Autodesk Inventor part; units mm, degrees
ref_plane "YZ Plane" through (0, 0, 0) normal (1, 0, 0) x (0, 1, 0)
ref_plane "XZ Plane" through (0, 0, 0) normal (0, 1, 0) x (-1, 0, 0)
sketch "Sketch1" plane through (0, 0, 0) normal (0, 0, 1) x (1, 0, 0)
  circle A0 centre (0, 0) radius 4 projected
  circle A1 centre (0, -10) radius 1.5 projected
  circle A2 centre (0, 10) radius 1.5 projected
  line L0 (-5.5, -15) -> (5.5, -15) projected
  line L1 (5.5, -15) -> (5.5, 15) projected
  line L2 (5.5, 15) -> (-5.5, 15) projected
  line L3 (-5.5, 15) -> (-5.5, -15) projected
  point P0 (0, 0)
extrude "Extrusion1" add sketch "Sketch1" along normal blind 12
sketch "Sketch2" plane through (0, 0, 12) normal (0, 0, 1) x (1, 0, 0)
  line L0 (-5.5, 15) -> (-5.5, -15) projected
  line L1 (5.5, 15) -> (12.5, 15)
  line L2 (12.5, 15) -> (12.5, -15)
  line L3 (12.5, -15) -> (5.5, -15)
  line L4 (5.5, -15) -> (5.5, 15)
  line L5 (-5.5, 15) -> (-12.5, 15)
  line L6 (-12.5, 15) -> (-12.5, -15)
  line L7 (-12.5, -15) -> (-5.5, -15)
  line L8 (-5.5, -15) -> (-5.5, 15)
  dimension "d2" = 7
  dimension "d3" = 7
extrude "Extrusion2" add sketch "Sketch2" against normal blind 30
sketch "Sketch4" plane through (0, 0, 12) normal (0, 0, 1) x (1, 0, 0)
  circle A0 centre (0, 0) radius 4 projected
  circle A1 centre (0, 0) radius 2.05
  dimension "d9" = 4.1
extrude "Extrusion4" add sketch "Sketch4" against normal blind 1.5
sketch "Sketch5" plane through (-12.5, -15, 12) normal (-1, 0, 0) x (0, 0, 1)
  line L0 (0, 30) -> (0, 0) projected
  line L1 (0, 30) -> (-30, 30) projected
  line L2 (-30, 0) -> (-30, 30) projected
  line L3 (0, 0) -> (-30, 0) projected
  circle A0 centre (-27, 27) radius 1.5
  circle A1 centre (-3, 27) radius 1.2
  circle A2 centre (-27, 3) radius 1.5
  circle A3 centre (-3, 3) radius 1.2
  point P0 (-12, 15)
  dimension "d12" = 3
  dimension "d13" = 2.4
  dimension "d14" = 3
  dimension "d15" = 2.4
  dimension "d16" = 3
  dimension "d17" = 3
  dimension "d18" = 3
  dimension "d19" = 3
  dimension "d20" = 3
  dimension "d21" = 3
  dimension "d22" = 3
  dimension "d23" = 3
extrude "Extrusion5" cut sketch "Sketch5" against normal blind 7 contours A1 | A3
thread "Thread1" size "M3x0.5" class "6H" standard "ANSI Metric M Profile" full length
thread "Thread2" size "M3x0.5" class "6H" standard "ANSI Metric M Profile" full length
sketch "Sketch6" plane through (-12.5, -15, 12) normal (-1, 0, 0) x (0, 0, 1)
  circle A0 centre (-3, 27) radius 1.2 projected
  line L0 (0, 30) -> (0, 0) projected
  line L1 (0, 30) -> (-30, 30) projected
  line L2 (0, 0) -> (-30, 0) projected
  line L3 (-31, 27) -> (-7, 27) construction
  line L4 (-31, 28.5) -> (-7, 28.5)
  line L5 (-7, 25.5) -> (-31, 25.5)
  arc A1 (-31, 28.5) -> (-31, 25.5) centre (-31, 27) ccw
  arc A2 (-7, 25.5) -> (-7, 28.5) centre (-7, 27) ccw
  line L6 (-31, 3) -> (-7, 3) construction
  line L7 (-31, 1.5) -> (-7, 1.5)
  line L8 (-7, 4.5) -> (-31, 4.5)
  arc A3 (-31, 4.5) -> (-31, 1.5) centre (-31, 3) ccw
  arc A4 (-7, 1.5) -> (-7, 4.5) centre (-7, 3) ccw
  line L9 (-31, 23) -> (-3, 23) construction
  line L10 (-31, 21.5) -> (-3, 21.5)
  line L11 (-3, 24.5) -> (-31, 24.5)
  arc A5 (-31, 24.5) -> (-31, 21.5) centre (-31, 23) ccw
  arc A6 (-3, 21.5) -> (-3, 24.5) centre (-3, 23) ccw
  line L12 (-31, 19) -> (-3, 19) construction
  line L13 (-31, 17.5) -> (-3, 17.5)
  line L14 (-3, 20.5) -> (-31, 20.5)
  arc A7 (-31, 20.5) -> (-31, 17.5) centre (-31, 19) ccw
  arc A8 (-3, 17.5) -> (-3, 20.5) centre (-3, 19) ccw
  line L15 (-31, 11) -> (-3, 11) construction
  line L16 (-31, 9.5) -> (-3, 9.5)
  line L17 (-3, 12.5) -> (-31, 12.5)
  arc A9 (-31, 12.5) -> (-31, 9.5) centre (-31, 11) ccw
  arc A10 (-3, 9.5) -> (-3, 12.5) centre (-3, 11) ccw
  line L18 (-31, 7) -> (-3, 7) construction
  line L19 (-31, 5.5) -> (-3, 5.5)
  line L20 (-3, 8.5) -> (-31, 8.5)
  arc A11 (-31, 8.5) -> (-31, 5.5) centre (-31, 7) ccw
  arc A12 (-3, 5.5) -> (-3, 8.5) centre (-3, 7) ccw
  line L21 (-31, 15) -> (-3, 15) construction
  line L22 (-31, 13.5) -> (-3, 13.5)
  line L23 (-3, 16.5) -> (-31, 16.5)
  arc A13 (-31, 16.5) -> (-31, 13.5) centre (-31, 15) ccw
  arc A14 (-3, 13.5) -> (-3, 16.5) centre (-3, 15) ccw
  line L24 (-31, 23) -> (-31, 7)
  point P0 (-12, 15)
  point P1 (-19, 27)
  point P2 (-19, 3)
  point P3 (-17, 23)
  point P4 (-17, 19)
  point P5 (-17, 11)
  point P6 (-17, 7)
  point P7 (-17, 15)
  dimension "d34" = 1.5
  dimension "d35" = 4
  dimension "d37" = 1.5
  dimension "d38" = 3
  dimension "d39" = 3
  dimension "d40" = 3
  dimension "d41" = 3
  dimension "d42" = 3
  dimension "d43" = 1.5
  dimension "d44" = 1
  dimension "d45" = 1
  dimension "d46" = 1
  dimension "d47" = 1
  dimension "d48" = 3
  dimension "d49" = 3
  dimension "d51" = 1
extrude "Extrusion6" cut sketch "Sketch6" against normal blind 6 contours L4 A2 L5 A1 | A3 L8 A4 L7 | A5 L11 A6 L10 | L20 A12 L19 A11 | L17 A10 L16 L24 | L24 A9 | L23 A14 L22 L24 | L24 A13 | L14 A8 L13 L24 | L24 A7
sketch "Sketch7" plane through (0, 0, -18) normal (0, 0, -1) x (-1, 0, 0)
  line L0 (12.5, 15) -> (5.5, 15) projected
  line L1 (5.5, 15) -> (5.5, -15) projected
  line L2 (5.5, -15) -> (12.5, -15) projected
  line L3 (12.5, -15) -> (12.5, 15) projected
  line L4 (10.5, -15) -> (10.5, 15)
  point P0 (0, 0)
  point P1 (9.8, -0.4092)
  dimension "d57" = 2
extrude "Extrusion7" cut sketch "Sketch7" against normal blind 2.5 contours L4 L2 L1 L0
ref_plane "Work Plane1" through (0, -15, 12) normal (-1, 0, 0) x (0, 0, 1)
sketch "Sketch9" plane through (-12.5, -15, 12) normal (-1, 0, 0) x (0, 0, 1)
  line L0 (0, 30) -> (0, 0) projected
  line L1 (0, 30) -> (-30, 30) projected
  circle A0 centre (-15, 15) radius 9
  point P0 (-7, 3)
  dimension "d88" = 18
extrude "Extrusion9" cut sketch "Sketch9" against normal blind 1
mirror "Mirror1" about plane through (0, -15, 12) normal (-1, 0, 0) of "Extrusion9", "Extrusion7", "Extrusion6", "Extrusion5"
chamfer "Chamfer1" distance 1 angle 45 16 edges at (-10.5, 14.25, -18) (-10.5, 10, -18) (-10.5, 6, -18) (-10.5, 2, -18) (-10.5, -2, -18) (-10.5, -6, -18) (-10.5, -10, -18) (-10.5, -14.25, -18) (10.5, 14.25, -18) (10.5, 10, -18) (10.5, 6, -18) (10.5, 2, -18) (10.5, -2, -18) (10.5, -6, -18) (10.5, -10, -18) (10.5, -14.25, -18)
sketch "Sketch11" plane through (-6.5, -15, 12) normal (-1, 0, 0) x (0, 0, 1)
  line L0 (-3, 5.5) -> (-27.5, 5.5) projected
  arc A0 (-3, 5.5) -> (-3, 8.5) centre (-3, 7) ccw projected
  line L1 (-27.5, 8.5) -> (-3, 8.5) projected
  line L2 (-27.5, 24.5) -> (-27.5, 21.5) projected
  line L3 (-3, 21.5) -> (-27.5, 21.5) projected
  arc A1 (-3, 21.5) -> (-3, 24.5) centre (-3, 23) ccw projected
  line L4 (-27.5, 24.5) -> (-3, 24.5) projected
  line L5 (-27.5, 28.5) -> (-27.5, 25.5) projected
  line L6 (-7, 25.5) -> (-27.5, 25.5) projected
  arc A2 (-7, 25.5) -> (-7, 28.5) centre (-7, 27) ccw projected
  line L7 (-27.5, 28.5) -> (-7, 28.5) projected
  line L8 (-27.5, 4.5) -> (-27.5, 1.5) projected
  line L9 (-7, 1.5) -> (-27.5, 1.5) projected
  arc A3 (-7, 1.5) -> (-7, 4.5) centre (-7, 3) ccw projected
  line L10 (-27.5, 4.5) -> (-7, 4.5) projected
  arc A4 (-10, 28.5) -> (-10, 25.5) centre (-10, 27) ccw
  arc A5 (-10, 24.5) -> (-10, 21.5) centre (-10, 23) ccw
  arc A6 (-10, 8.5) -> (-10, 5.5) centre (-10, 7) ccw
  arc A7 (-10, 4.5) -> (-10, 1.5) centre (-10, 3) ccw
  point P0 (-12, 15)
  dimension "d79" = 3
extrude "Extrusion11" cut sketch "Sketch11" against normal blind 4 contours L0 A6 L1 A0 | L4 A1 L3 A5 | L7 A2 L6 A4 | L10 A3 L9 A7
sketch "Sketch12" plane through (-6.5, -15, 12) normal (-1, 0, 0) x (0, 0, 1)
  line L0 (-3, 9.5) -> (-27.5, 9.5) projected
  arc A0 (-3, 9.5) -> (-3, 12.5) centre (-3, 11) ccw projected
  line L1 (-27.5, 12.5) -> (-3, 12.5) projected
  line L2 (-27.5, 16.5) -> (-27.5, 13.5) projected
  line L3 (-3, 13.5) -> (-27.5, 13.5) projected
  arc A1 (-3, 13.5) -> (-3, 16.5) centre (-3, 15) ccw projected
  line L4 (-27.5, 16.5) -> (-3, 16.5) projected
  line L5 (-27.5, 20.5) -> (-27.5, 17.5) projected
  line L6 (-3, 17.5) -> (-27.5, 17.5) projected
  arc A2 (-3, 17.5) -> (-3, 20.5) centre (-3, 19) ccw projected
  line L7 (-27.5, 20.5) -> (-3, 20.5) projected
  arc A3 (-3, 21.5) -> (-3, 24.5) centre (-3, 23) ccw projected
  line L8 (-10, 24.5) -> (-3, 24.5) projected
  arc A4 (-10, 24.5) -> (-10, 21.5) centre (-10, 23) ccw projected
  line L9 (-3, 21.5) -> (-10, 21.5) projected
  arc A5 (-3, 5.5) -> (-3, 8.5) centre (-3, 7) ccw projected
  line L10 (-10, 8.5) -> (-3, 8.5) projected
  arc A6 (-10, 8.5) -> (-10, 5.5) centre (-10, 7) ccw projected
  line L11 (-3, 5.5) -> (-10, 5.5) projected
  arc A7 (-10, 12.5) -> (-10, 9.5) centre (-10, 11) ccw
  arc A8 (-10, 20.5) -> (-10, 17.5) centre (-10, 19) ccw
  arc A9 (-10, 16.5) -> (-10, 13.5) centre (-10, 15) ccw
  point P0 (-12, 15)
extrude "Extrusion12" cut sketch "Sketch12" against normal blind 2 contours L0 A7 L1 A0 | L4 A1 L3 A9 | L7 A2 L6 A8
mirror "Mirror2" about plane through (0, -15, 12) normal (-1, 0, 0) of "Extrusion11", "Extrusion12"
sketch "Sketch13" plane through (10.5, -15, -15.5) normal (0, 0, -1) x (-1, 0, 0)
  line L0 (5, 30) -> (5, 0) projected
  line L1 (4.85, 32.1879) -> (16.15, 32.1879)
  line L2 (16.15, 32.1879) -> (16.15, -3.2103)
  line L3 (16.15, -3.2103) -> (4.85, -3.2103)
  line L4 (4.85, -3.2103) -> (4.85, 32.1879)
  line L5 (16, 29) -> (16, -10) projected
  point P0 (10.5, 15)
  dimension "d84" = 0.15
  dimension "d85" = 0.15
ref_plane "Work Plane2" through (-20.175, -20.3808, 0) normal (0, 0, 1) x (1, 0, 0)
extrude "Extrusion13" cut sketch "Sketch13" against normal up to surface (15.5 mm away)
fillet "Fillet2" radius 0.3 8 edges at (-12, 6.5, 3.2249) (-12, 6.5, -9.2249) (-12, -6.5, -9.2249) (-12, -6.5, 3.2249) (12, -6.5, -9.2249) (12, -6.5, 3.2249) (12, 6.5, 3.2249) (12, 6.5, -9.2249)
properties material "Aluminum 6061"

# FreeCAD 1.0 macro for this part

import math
import FreeCAD as App
import Part
import Sketcher
Q = App.Units.Quantity


def edges_at(feature, points):
    """Names of the edges that pass closest to the given points."""
    edges = feature.Shape.Edges
    near = lambda p: min(range(len(edges)), key=lambda i: edges[i].distToShape(Part.Vertex(*p))[0])
    return sorted({f"Edge{near(p) + 1}" for p in points})


def add_polygon(sketch, points):
    """Adds a closed chain of lines whose ends are joined by coincident constraints."""
    first, n = sketch.GeometryCount, len(points)
    for a, b in zip(points, points[1:] + points[:1]):
        sketch.addGeometry(Part.LineSegment(App.Vector(*a, 0), App.Vector(*b, 0)), False)
    for i in range(n):
        sketch.addConstraint(Sketcher.Constraint("Coincident", first + i, 2, first + (i + 1) % n, 1))

doc = App.newDocument("Part")
body = doc.addObject("PartDesign::Body", "Body")

# Sketch on XY plane
sketch1 = body.newObject("Sketcher::SketchObject", "Sketch")
sketch1.AttachmentSupport = (doc.getObject("XY_Plane"), [""])
sketch1.MapMode = "FlatFace"
add_polygon(sketch1, [(-5.5, 15), (-5.5, -15), (5.5, -15), (5.5, 15)])  # lines 0-3
sketch1.addGeometry(Part.Circle(App.Vector(0, -10, 0), App.Vector(0, 0, 1), 1.5), False)  # 4
sketch1.addGeometry(Part.Circle(App.Vector(0, 0, 0), App.Vector(0, 0, 1), 4), False)  # 5
sketch1.addGeometry(Part.Circle(App.Vector(0, 10, 0), App.Vector(0, 0, 1), 1.5), False)  # 6
sketch1.addConstraint([
    Sketcher.Constraint("Vertical", 0),
    Sketcher.Constraint("Horizontal", 1),
    Sketcher.Constraint("Vertical", 2),
    Sketcher.Constraint("Horizontal", 3),
    Sketcher.Constraint("Coincident", 5, 3, -1, 1),
    Sketcher.Constraint("Equal", 4, 6),
    Sketcher.Constraint("Symmetric", 4, 3, 6, 3, -1, 1),
    Sketcher.Constraint("Symmetric", 0, 2, 2, 2, -1, 1),
    Sketcher.Constraint("PointOnObject", 4, 3, -2),
    Sketcher.Constraint("Diameter", 4, Q("3 mm")),
    Sketcher.Constraint("Diameter", 5, Q("8 mm")),
    Sketcher.Constraint("DistanceX", 1, 1, 1, 2, Q("11 mm")),
    Sketcher.Constraint("DistanceY", 0, 2, 0, 1, Q("30 mm")),
    Sketcher.Constraint("DistanceY", 4, 3, -1, 1, Q("10 mm")),
])
pad1 = body.newObject("PartDesign::Pad", "Pad")
pad1.Profile = sketch1
pad1.Length = 12

# Sketch on XY plane
sketch2 = body.newObject("Sketcher::SketchObject", "Sketch001")
sketch2.AttachmentSupport = (doc.getObject("XY_Plane"), [""])
sketch2.MapMode = "FlatFace"
sketch2.AttachmentOffset = App.Placement(App.Vector(0, 0, 12), App.Rotation())
add_polygon(sketch2, [(-5.5, -15), (-5.5, 15), (-12.5, 15), (-12.5, -15)])  # lines 0-3
add_polygon(sketch2, [(12.5, 15), (5.5, 15), (5.5, -15), (12.5, -15)])  # lines 4-7
sketch2.addConstraint([
    Sketcher.Constraint("Vertical", 0),
    Sketcher.Constraint("Horizontal", 1),
    Sketcher.Constraint("Vertical", 2),
    Sketcher.Constraint("Horizontal", 3),
    Sketcher.Constraint("Horizontal", 4),
    Sketcher.Constraint("Vertical", 5),
    Sketcher.Constraint("Horizontal", 6),
    Sketcher.Constraint("Vertical", 7),
    Sketcher.Constraint("Symmetric", 3, 2, 4, 2, -1, 1),
    Sketcher.Constraint("Symmetric", 1, 2, 6, 2, -1, 1),
    Sketcher.Constraint("Horizontal", 1, 2, 4, 2),
    Sketcher.Constraint("DistanceX", 1, 2, 1, 1, Q("7 mm")),
    Sketcher.Constraint("DistanceY", 0, 1, 0, 2, Q("30 mm")),
    Sketcher.Constraint("DistanceX", 0, 2, 4, 2, Q("11 mm")),
])
pad2 = body.newObject("PartDesign::Pad", "Pad001")
pad2.Profile = sketch2
pad2.Length = 30
pad2.Reversed = True

# Sketch on XY plane
sketch3 = body.newObject("Sketcher::SketchObject", "Sketch002")
sketch3.AttachmentSupport = (doc.getObject("XY_Plane"), [""])
sketch3.MapMode = "FlatFace"
sketch3.AttachmentOffset = App.Placement(App.Vector(0, 0, 12), App.Rotation())
sketch3.addGeometry([
    Part.Circle(App.Vector(0, 0, 0), App.Vector(0, 0, 1), 4),
    Part.Circle(App.Vector(0, 0, 0), App.Vector(0, 0, 1), 2.05),
], False)
sketch3.addConstraint([
    Sketcher.Constraint("Coincident", 0, 3, -1, 1),
    Sketcher.Constraint("Coincident", 1, 3, -1, 1),
    Sketcher.Constraint("Diameter", 1, Q("4.1 mm")),
    Sketcher.Constraint("Diameter", 0, Q("8 mm")),
])
pad3 = body.newObject("PartDesign::Pad", "Pad002")
pad3.Profile = sketch3
pad3.Length = 1.5
pad3.Reversed = True

# Sketch on YZ plane
sketch4 = body.newObject("Sketcher::SketchObject", "Sketch003")
sketch4.AttachmentSupport = (doc.getObject("YZ_Plane"), [""])
sketch4.MapMode = "FlatFace"
sketch4.AttachmentOffset = App.Placement(App.Vector(0, 0, -12.5), App.Rotation())
sketch4.addGeometry([
    Part.Circle(App.Vector(12, 9, 0), App.Vector(0, 0, 1), 1.2),
    Part.Circle(App.Vector(-12, 9, 0), App.Vector(0, 0, 1), 1.2),
], False)
sketch4.addConstraint([
    Sketcher.Constraint("Equal", 0, 1),
    Sketcher.Constraint("Symmetric", 0, 3, 1, 3, -2),
    Sketcher.Constraint("Diameter", 0, Q("2.4 mm")),
    Sketcher.Constraint("DistanceX", -1, 1, 0, 3, Q("12 mm")),
    Sketcher.Constraint("DistanceY", -1, 1, 0, 3, Q("9 mm")),
])
pocket1 = body.newObject("PartDesign::Pocket", "Pocket")
pocket1.Profile = sketch4
pocket1.Length = 7
pocket1.Reversed = True

# Sketch on YZ plane
sketch5 = body.newObject("Sketcher::SketchObject", "Sketch004")
sketch5.AttachmentSupport = (doc.getObject("YZ_Plane"), [""])
sketch5.MapMode = "FlatFace"
sketch5.AttachmentOffset = App.Placement(App.Vector(0, 0, -12.5), App.Rotation())
sketch5.addGeometry([
    Part.LineSegment(App.Vector(13.5, 5, 0), App.Vector(13.5, -19, 0)),  # 0
    Part.ArcOfCircle(Part.Circle(App.Vector(12, -19, 0), App.Vector(0, 0, 1), 1.5), math.radians(180), math.radians(360)),  # 1
    Part.LineSegment(App.Vector(10.5, -19, 0), App.Vector(10.5, 5, 0)),  # 2
    Part.ArcOfCircle(Part.Circle(App.Vector(12, 5, 0), App.Vector(0, 0, 1), 1.5), math.radians(0), math.radians(180)),  # 3
    Part.ArcOfCircle(Part.Circle(App.Vector(-12, -19, 0), App.Vector(0, 0, 1), 1.5), math.radians(180), math.radians(360)),  # 4
    Part.LineSegment(App.Vector(-13.5, -19, 0), App.Vector(-13.5, 5, 0)),  # 5
    Part.ArcOfCircle(Part.Circle(App.Vector(-12, 5, 0), App.Vector(0, 0, 1), 1.5), math.radians(0), math.radians(180)),  # 6
    Part.LineSegment(App.Vector(-10.5, 5, 0), App.Vector(-10.5, -19, 0)),  # 7
    Part.ArcOfCircle(Part.Circle(App.Vector(8, -19, 0), App.Vector(0, 0, 1), 1.5), math.radians(180), math.radians(360)),  # 8
    Part.LineSegment(App.Vector(6.5, -19, 0), App.Vector(6.5, 9, 0)),  # 9
    Part.ArcOfCircle(Part.Circle(App.Vector(8, 9, 0), App.Vector(0, 0, 1), 1.5), math.radians(0), math.radians(180)),  # 10
    Part.LineSegment(App.Vector(9.5, 9, 0), App.Vector(9.5, -19, 0)),  # 11
    Part.LineSegment(App.Vector(-6.5, 9, 0), App.Vector(-6.5, -19, 0)),  # 12
    Part.ArcOfCircle(Part.Circle(App.Vector(-8, -19, 0), App.Vector(0, 0, 1), 1.5), math.radians(180), math.radians(360)),  # 13
    Part.LineSegment(App.Vector(-9.5, -19, 0), App.Vector(-9.5, 9, 0)),  # 14
    Part.ArcOfCircle(Part.Circle(App.Vector(-8, 9, 0), App.Vector(0, 0, 1), 1.5), math.radians(0), math.radians(180)),  # 15
    Part.LineSegment(App.Vector(-2.5, 9, 0), App.Vector(-2.5, -19, 0)),  # 16
    Part.ArcOfCircle(Part.Circle(App.Vector(-4, -19, 0), App.Vector(0, 0, 1), 1.5), math.radians(180), math.radians(360)),  # 17
    Part.LineSegment(App.Vector(-5.5, -19, 0), App.Vector(-5.5, 9, 0)),  # 18
    Part.ArcOfCircle(Part.Circle(App.Vector(-4, 9, 0), App.Vector(0, 0, 1), 1.5), math.radians(0), math.radians(180)),  # 19
    Part.LineSegment(App.Vector(1.5, 9, 0), App.Vector(1.5, -19, 0)),  # 20
    Part.ArcOfCircle(Part.Circle(App.Vector(0, -19, 0), App.Vector(0, 0, 1), 1.5), math.radians(180), math.radians(360)),  # 21
    Part.LineSegment(App.Vector(-1.5, -19, 0), App.Vector(-1.5, 9, 0)),  # 22
    Part.ArcOfCircle(Part.Circle(App.Vector(0, 9, 0), App.Vector(0, 0, 1), 1.5), math.radians(0), math.radians(180)),  # 23
    Part.LineSegment(App.Vector(5.5, 9, 0), App.Vector(5.5, -19, 0)),  # 24
    Part.ArcOfCircle(Part.Circle(App.Vector(4, -19, 0), App.Vector(0, 0, 1), 1.5), math.radians(180), math.radians(360)),  # 25
    Part.LineSegment(App.Vector(2.5, -19, 0), App.Vector(2.5, 9, 0)),  # 26
    Part.ArcOfCircle(Part.Circle(App.Vector(4, 9, 0), App.Vector(0, 0, 1), 1.5), math.radians(0), math.radians(180)),  # 27
], False)
sketch5.addConstraint([
    Sketcher.Constraint("Tangent", 0, 2, 1, 2),
    Sketcher.Constraint("Tangent", 1, 1, 2, 1),
    Sketcher.Constraint("Tangent", 2, 2, 3, 2),
    Sketcher.Constraint("Tangent", 3, 1, 0, 1),
    Sketcher.Constraint("Tangent", 4, 1, 5, 1),
    Sketcher.Constraint("Tangent", 5, 2, 6, 2),
    Sketcher.Constraint("Tangent", 6, 1, 7, 1),
    Sketcher.Constraint("Tangent", 7, 2, 4, 2),
    Sketcher.Constraint("Tangent", 8, 1, 9, 1),
    Sketcher.Constraint("Tangent", 9, 2, 10, 2),
    Sketcher.Constraint("Tangent", 10, 1, 11, 1),
    Sketcher.Constraint("Tangent", 11, 2, 8, 2),
    Sketcher.Constraint("Tangent", 12, 2, 13, 2),
    Sketcher.Constraint("Tangent", 13, 1, 14, 1),
    Sketcher.Constraint("Tangent", 14, 2, 15, 2),
    Sketcher.Constraint("Tangent", 15, 1, 12, 1),
    Sketcher.Constraint("Tangent", 16, 2, 17, 2),
    Sketcher.Constraint("Tangent", 17, 1, 18, 1),
    Sketcher.Constraint("Tangent", 18, 2, 19, 2),
    Sketcher.Constraint("Tangent", 19, 1, 16, 1),
    Sketcher.Constraint("Tangent", 20, 2, 21, 2),
    Sketcher.Constraint("Tangent", 21, 1, 22, 1),
    Sketcher.Constraint("Tangent", 22, 2, 23, 2),
    Sketcher.Constraint("Tangent", 23, 1, 20, 1),
    Sketcher.Constraint("Tangent", 24, 2, 25, 2),
    Sketcher.Constraint("Tangent", 25, 1, 26, 1),
    Sketcher.Constraint("Tangent", 26, 2, 27, 2),
    Sketcher.Constraint("Tangent", 27, 1, 24, 1),
    Sketcher.Constraint("Vertical", 0),
    Sketcher.Constraint("Vertical", 2),
    Sketcher.Constraint("Vertical", 5),
    Sketcher.Constraint("Vertical", 7),
    Sketcher.Constraint("Vertical", 9),
    Sketcher.Constraint("Vertical", 11),
    Sketcher.Constraint("Vertical", 12),
    Sketcher.Constraint("Vertical", 14),
    Sketcher.Constraint("Vertical", 16),
    Sketcher.Constraint("Vertical", 18),
    Sketcher.Constraint("Vertical", 20),
    Sketcher.Constraint("Vertical", 22),
    Sketcher.Constraint("Vertical", 24),
    Sketcher.Constraint("Vertical", 26),
    Sketcher.Constraint("Equal", 3, 4),
    Sketcher.Constraint("Equal", 6, 8),
    Sketcher.Constraint("Equal", 10, 13),
    Sketcher.Constraint("Equal", 15, 17),
    Sketcher.Constraint("Equal", 19, 21),
    Sketcher.Constraint("Equal", 23, 25),
    Sketcher.Constraint("Symmetric", 1, 3, 4, 3, -2),
    Sketcher.Constraint("Symmetric", 8, 3, 13, 3, -2),
    Sketcher.Constraint("Symmetric", 17, 3, 25, 3, -2),
    Sketcher.Constraint("PointOnObject", 21, 3, -2),
    Sketcher.Constraint("Horizontal", 3, 3, 6, 3),
    Sketcher.Constraint("Horizontal", 4, 3, 8, 3),
    Sketcher.Constraint("Horizontal", 10, 3, 15, 3),
    Sketcher.Constraint("Horizontal", 13, 3, 17, 3),
    Sketcher.Constraint("Horizontal", 15, 3, 19, 3),
    Sketcher.Constraint("Horizontal", 17, 3, 21, 3),
    Sketcher.Constraint("Horizontal", 19, 3, 23, 3),
    Sketcher.Constraint("Horizontal", 23, 3, 27, 3),
    Sketcher.Constraint("Radius", 1, Q("1.5 mm")),
    Sketcher.Constraint("DistanceX", 17, 3, -1, 1, Q("4 mm")),
    Sketcher.Constraint("DistanceX", 8, 3, 1, 3, Q("4 mm")),
    Sketcher.Constraint("DistanceY", 3, 3, 10, 3, Q("4 mm")),
    Sketcher.Constraint("DistanceX", 13, 3, 17, 3, Q("4 mm")),
    Sketcher.Constraint("DistanceY", 0, 2, 0, 1, Q("24 mm")),
    Sketcher.Constraint("DistanceY", 1, 3, -1, 1, Q("19 mm")),
])
pocket2 = body.newObject("PartDesign::Pocket", "Pocket001")
pocket2.Profile = sketch5
pocket2.Length = 6
pocket2.Reversed = True

# Sketch on XY plane
sketch6 = body.newObject("Sketcher::SketchObject", "Sketch005")
sketch6.AttachmentSupport = (doc.getObject("XY_Plane"), [""])
sketch6.MapMode = "FlatFace"
sketch6.AttachmentOffset = App.Placement(App.Vector(0, 0, -18), App.Rotation())
add_polygon(sketch6, [(-10.5, -15), (-10.5, 15), (-5.5, 15), (-5.5, -15)])  # lines 0-3
sketch6.addConstraint([
    Sketcher.Constraint("Vertical", 0),
    Sketcher.Constraint("Horizontal", 1),
    Sketcher.Constraint("Vertical", 2),
    Sketcher.Constraint("Horizontal", 3),
    Sketcher.Constraint("DistanceX", 1, 1, 1, 2, Q("5 mm")),
    Sketcher.Constraint("DistanceY", 0, 1, 0, 2, Q("30 mm")),
    Sketcher.Constraint("DistanceY", -1, 1, 0, 2, Q("15 mm")),
    Sketcher.Constraint("DistanceX", 0, 2, -1, 1, Q("10.5 mm")),
])
pocket3 = body.newObject("PartDesign::Pocket", "Pocket002")
pocket3.Profile = sketch6
pocket3.Length = 2.5
pocket3.Reversed = True

# Sketch on YZ plane
sketch7 = body.newObject("Sketcher::SketchObject", "Sketch006")
sketch7.AttachmentSupport = (doc.getObject("YZ_Plane"), [""])
sketch7.MapMode = "FlatFace"
sketch7.AttachmentOffset = App.Placement(App.Vector(0, 0, -12.5), App.Rotation())
sketch7.addGeometry(Part.Circle(App.Vector(0, -3, 0), App.Vector(0, 0, 1), 9), False)
sketch7.addConstraint([
    Sketcher.Constraint("PointOnObject", 0, 3, -2),
    Sketcher.Constraint("Diameter", 0, Q("18 mm")),
    Sketcher.Constraint("DistanceY", 0, 3, -1, 1, Q("3 mm")),
])
pocket4 = body.newObject("PartDesign::Pocket", "Pocket003")
pocket4.Profile = sketch7
pocket4.Length = 1
pocket4.Reversed = True
doc.recompute()

mirrored = body.newObject("PartDesign::Mirrored", "Mirrored")
mirrored.Originals = [pocket4, pocket3, pocket2, pocket1]
mirrored.MirrorPlane = (doc.getObject("YZ_Plane"), [""])
body.Tip = mirrored
doc.recompute()

chamfer = body.newObject("PartDesign::Chamfer", "Chamfer")
chamfer.Base = (mirrored, edges_at(mirrored, [
    (-10.5, 14.25, -18),
    (-10.5, 10, -18),
    (-10.5, 6, -18),
    (-10.5, 2, -18),
    (-10.5, -2, -18),
    (-10.5, -6, -18),
    (-10.5, -10, -18),
    (-10.5, -14.25, -18),
    (10.5, 14.25, -18),
    (10.5, 10, -18),
    (10.5, 6, -18),
    (10.5, 2, -18),
    (10.5, -2, -18),
    (10.5, -6, -18),
    (10.5, -10, -18),
    (10.5, -14.25, -18),
]))
chamfer.Size = 1

# Sketch on YZ plane
sketch8 = body.newObject("Sketcher::SketchObject", "Sketch007")
sketch8.AttachmentSupport = (doc.getObject("YZ_Plane"), [""])
sketch8.MapMode = "FlatFace"
sketch8.AttachmentOffset = App.Placement(App.Vector(0, 0, -6.5), App.Rotation())
sketch8.addGeometry([
    Part.LineSegment(App.Vector(-9.5, 2, 0), App.Vector(-9.5, 9, 0)),  # 0
    Part.ArcOfCircle(Part.Circle(App.Vector(-8, 9, 0), App.Vector(0, 0, 1), 1.5), math.radians(0), math.radians(180)),  # 1
    Part.LineSegment(App.Vector(-6.5, 9, 0), App.Vector(-6.5, 2, 0)),  # 2
    Part.ArcOfCircle(Part.Circle(App.Vector(-8, 2, 0), App.Vector(0, 0, 1), 1.5), math.radians(180), math.radians(360)),  # 3
    Part.LineSegment(App.Vector(9.5, 9, 0), App.Vector(9.5, 2, 0)),  # 4
    Part.ArcOfCircle(Part.Circle(App.Vector(8, 2, 0), App.Vector(0, 0, 1), 1.5), math.radians(180), math.radians(360)),  # 5
    Part.LineSegment(App.Vector(6.5, 2, 0), App.Vector(6.5, 9, 0)),  # 6
    Part.ArcOfCircle(Part.Circle(App.Vector(8, 9, 0), App.Vector(0, 0, 1), 1.5), math.radians(0), math.radians(180)),  # 7
    Part.LineSegment(App.Vector(13.5, 5, 0), App.Vector(13.5, 2, 0)),  # 8
    Part.ArcOfCircle(Part.Circle(App.Vector(12, 2, 0), App.Vector(0, 0, 1), 1.5), math.radians(180), math.radians(360)),  # 9
    Part.LineSegment(App.Vector(10.5, 2, 0), App.Vector(10.5, 5, 0)),  # 10
    Part.ArcOfCircle(Part.Circle(App.Vector(12, 5, 0), App.Vector(0, 0, 1), 1.5), math.radians(0), math.radians(180)),  # 11
    Part.LineSegment(App.Vector(-10.5, 5, 0), App.Vector(-10.5, 2, 0)),  # 12
    Part.ArcOfCircle(Part.Circle(App.Vector(-12, 2, 0), App.Vector(0, 0, 1), 1.5), math.radians(180), math.radians(360)),  # 13
    Part.LineSegment(App.Vector(-13.5, 2, 0), App.Vector(-13.5, 5, 0)),  # 14
    Part.ArcOfCircle(Part.Circle(App.Vector(-12, 5, 0), App.Vector(0, 0, 1), 1.5), math.radians(0), math.radians(180)),  # 15
], False)
sketch8.addConstraint([
    Sketcher.Constraint("Tangent", 0, 2, 1, 2),
    Sketcher.Constraint("Tangent", 1, 1, 2, 1),
    Sketcher.Constraint("Tangent", 2, 2, 3, 2),
    Sketcher.Constraint("Tangent", 3, 1, 0, 1),
    Sketcher.Constraint("Tangent", 4, 2, 5, 2),
    Sketcher.Constraint("Tangent", 5, 1, 6, 1),
    Sketcher.Constraint("Tangent", 6, 2, 7, 2),
    Sketcher.Constraint("Tangent", 7, 1, 4, 1),
    Sketcher.Constraint("Tangent", 8, 2, 9, 2),
    Sketcher.Constraint("Tangent", 9, 1, 10, 1),
    Sketcher.Constraint("Tangent", 10, 2, 11, 2),
    Sketcher.Constraint("Tangent", 11, 1, 8, 1),
    Sketcher.Constraint("Tangent", 12, 2, 13, 2),
    Sketcher.Constraint("Tangent", 13, 1, 14, 1),
    Sketcher.Constraint("Tangent", 14, 2, 15, 2),
    Sketcher.Constraint("Tangent", 15, 1, 12, 1),
    Sketcher.Constraint("Vertical", 0),
    Sketcher.Constraint("Vertical", 2),
    Sketcher.Constraint("Vertical", 4),
    Sketcher.Constraint("Vertical", 6),
    Sketcher.Constraint("Vertical", 8),
    Sketcher.Constraint("Vertical", 10),
    Sketcher.Constraint("Vertical", 12),
    Sketcher.Constraint("Vertical", 14),
    Sketcher.Constraint("Equal", 3, 5),
    Sketcher.Constraint("Equal", 7, 9),
    Sketcher.Constraint("Equal", 11, 13),
    Sketcher.Constraint("Symmetric", 3, 3, 5, 3, -2),
    Sketcher.Constraint("Symmetric", 9, 3, 13, 3, -2),
    Sketcher.Constraint("Horizontal", 1, 3, 7, 3),
    Sketcher.Constraint("Horizontal", 5, 3, 9, 3),
    Sketcher.Constraint("Horizontal", 11, 3, 15, 3),
    Sketcher.Constraint("Radius", 1, Q("1.5 mm")),
    Sketcher.Constraint("DistanceY", 8, 2, 8, 1, Q("3 mm")),
    Sketcher.Constraint("DistanceY", 0, 1, 0, 2, Q("7 mm")),
    Sketcher.Constraint("DistanceX", 1, 3, -1, 1, Q("8 mm")),
    Sketcher.Constraint("DistanceY", -1, 1, 1, 3, Q("9 mm")),
    Sketcher.Constraint("DistanceX", -1, 1, 9, 3, Q("12 mm")),
])
pocket5 = body.newObject("PartDesign::Pocket", "Pocket004")
pocket5.Profile = sketch8
pocket5.Length = 4
pocket5.Reversed = True

# Sketch on YZ plane
sketch9 = body.newObject("Sketcher::SketchObject", "Sketch008")
sketch9.AttachmentSupport = (doc.getObject("YZ_Plane"), [""])
sketch9.MapMode = "FlatFace"
sketch9.AttachmentOffset = App.Placement(App.Vector(0, 0, -6.5), App.Rotation())
sketch9.addGeometry([
    Part.LineSegment(App.Vector(-5.5, 2, 0), App.Vector(-5.5, 9, 0)),  # 0
    Part.ArcOfCircle(Part.Circle(App.Vector(-4, 9, 0), App.Vector(0, 0, 1), 1.5), math.radians(0), math.radians(180)),  # 1
    Part.LineSegment(App.Vector(-2.5, 9, 0), App.Vector(-2.5, 2, 0)),  # 2
    Part.ArcOfCircle(Part.Circle(App.Vector(-4, 2, 0), App.Vector(0, 0, 1), 1.5), math.radians(180), math.radians(360)),  # 3
    Part.LineSegment(App.Vector(1.5, 9, 0), App.Vector(1.5, 2, 0)),  # 4
    Part.ArcOfCircle(Part.Circle(App.Vector(0, 2, 0), App.Vector(0, 0, 1), 1.5), math.radians(180), math.radians(360)),  # 5
    Part.LineSegment(App.Vector(-1.5, 2, 0), App.Vector(-1.5, 9, 0)),  # 6
    Part.ArcOfCircle(Part.Circle(App.Vector(0, 9, 0), App.Vector(0, 0, 1), 1.5), math.radians(0), math.radians(180)),  # 7
    Part.LineSegment(App.Vector(5.5, 9, 0), App.Vector(5.5, 2, 0)),  # 8
    Part.ArcOfCircle(Part.Circle(App.Vector(4, 2, 0), App.Vector(0, 0, 1), 1.5), math.radians(180), math.radians(360)),  # 9
    Part.LineSegment(App.Vector(2.5, 2, 0), App.Vector(2.5, 9, 0)),  # 10
    Part.ArcOfCircle(Part.Circle(App.Vector(4, 9, 0), App.Vector(0, 0, 1), 1.5), math.radians(0), math.radians(180)),  # 11
], False)
sketch9.addConstraint([
    Sketcher.Constraint("Tangent", 0, 2, 1, 2),
    Sketcher.Constraint("Tangent", 1, 1, 2, 1),
    Sketcher.Constraint("Tangent", 2, 2, 3, 2),
    Sketcher.Constraint("Tangent", 3, 1, 0, 1),
    Sketcher.Constraint("Tangent", 4, 2, 5, 2),
    Sketcher.Constraint("Tangent", 5, 1, 6, 1),
    Sketcher.Constraint("Tangent", 6, 2, 7, 2),
    Sketcher.Constraint("Tangent", 7, 1, 4, 1),
    Sketcher.Constraint("Tangent", 8, 2, 9, 2),
    Sketcher.Constraint("Tangent", 9, 1, 10, 1),
    Sketcher.Constraint("Tangent", 10, 2, 11, 2),
    Sketcher.Constraint("Tangent", 11, 1, 8, 1),
    Sketcher.Constraint("Vertical", 0),
    Sketcher.Constraint("Vertical", 2),
    Sketcher.Constraint("Vertical", 4),
    Sketcher.Constraint("Vertical", 6),
    Sketcher.Constraint("Vertical", 8),
    Sketcher.Constraint("Vertical", 10),
    Sketcher.Constraint("Equal", 3, 5),
    Sketcher.Constraint("Equal", 7, 9),
    Sketcher.Constraint("Symmetric", 3, 3, 9, 3, -2),
    Sketcher.Constraint("PointOnObject", 5, 3, -2),
    Sketcher.Constraint("Horizontal", 3, 3, 5, 3),
    Sketcher.Constraint("Horizontal", 1, 3, 7, 3),
    Sketcher.Constraint("Horizontal", 7, 3, 11, 3),
    Sketcher.Constraint("Radius", 1, Q("1.5 mm")),
    Sketcher.Constraint("DistanceY", 0, 1, 0, 2, Q("7 mm")),
    Sketcher.Constraint("DistanceX", 1, 3, -1, 1, Q("4 mm")),
    Sketcher.Constraint("DistanceY", -1, 1, 1, 3, Q("9 mm")),
])
pocket6 = body.newObject("PartDesign::Pocket", "Pocket005")
pocket6.Profile = sketch9
pocket6.Length = 2
pocket6.Reversed = True
doc.recompute()

mirrored2 = body.newObject("PartDesign::Mirrored", "Mirrored001")
mirrored2.Originals = [pocket5, pocket6]
mirrored2.MirrorPlane = (doc.getObject("YZ_Plane"), [""])
body.Tip = mirrored2

# Sketch on XY plane
sketch10 = body.newObject("Sketcher::SketchObject", "Sketch009")
sketch10.AttachmentSupport = (doc.getObject("XY_Plane"), [""])
sketch10.MapMode = "FlatFace"
sketch10.AttachmentOffset = App.Placement(App.Vector(0, 0, -15.5), App.Rotation())
add_polygon(sketch10, [(-5.65, 17.1879), (5.65, 17.1879), (5.65, -18.2103), (-5.65, -18.2103)])  # lines 0-3
sketch10.addConstraint([
    Sketcher.Constraint("Horizontal", 0),
    Sketcher.Constraint("Vertical", 1),
    Sketcher.Constraint("Horizontal", 2),
    Sketcher.Constraint("Vertical", 3),
    Sketcher.Constraint("DistanceX", 0, 1, 0, 2, Q("11.3 mm")),
    Sketcher.Constraint("DistanceX", -1, 1, 0, 2, Q("5.65 mm")),
    Sketcher.Constraint("DistanceY", 1, 2, 1, 1, Q("35.3982 mm")),
    Sketcher.Constraint("DistanceY", -1, 1, 0, 2, Q("17.188 mm")),
])
pocket7 = body.newObject("PartDesign::Pocket", "Pocket006")
pocket7.Profile = sketch10
pocket7.Length = 15.5
pocket7.Reversed = True
doc.recompute()

fillet = body.newObject("PartDesign::Fillet", "Fillet")
fillet.Base = (pocket7, edges_at(pocket7, [
    (-12, 6.5, 3.225),
    (-12, 6.5, -9.225),
    (-12, -6.5, -9.225),
    (-12, -6.5, 3.225),
    (12, -6.5, -9.225),
    (12, -6.5, 3.225),
    (12, 6.5, 3.225),
    (12, 6.5, -9.225),
]))
fillet.Radius = 0.3

doc.recompute()
